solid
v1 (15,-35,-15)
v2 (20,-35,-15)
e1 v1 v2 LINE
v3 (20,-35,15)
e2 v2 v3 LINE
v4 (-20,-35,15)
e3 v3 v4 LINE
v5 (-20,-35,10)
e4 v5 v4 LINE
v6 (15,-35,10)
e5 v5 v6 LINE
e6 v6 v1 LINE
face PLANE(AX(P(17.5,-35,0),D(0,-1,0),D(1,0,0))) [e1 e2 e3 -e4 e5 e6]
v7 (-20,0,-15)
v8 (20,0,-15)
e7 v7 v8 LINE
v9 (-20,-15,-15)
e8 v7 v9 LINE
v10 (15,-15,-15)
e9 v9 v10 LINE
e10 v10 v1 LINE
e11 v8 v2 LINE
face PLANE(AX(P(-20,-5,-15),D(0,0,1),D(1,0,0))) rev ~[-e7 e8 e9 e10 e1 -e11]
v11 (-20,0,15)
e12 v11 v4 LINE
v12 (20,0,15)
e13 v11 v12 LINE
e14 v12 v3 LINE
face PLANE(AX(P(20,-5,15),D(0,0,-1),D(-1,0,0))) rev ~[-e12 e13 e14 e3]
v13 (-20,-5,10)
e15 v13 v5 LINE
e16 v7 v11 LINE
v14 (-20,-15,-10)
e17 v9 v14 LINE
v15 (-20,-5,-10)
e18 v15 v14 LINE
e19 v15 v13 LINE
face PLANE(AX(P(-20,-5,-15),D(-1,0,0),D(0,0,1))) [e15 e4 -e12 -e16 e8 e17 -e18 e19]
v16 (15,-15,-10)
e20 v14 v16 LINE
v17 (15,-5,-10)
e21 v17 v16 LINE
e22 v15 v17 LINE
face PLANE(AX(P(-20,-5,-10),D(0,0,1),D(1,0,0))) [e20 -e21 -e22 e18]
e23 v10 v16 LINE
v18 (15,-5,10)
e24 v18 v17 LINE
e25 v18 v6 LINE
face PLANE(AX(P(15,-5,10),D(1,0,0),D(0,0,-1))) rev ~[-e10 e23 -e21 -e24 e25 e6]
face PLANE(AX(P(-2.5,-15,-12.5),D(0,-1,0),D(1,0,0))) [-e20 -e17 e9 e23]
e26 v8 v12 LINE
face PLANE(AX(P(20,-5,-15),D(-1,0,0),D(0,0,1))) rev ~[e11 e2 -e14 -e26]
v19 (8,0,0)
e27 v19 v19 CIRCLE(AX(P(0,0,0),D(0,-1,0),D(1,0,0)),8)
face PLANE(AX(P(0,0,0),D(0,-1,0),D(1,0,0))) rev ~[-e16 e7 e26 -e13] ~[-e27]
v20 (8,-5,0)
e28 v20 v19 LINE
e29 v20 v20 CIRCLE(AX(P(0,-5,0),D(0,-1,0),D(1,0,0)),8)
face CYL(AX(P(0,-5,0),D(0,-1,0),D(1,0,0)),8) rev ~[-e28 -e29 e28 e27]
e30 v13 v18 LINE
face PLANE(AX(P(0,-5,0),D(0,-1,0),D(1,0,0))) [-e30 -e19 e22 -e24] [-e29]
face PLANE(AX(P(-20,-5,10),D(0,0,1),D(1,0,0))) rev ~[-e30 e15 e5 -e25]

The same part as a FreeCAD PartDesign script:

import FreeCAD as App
import Part
import Sketcher

doc = App.newDocument("Part")
body = doc.addObject("PartDesign::Body", "Body")

sketch1 = body.newObject("Sketcher::SketchObject", "Sketch")
sketch1.AttachmentSupport = (doc.getObject("XZ_Plane"), [""])
sketch1.MapMode = "FlatFace"
sketch1.addGeometry(Part.LineSegment(App.Vector(-20, 15, 0), App.Vector(-20, -15, 0)), False)
sketch1.addGeometry(Part.LineSegment(App.Vector(-20, -15, 0), App.Vector(20, -15, 0)), False)
sketch1.addGeometry(Part.LineSegment(App.Vector(20, -15, 0), App.Vector(20, 15, 0)), False)
sketch1.addGeometry(Part.LineSegment(App.Vector(20, 15, 0), App.Vector(-20, 15, 0)), False)
sketch1.addConstraint(Sketcher.Constraint("Coincident", 0, 2, 1, 1))
sketch1.addConstraint(Sketcher.Constraint("Coincident", 1, 2, 2, 1))
sketch1.addConstraint(Sketcher.Constraint("Coincident", 2, 2, 3, 1))
sketch1.addConstraint(Sketcher.Constraint("Coincident", 3, 2, 0, 1))
sketch1.addConstraint(Sketcher.Constraint("Vertical", 0))
sketch1.addConstraint(Sketcher.Constraint("Horizontal", 1))
sketch1.addConstraint(Sketcher.Constraint("Vertical", 2))
sketch1.addConstraint(Sketcher.Constraint("Horizontal", 3))
sketch1.addConstraint(Sketcher.Constraint("Symmetric", 0, 2, 2, 2, -1, 1))
sketch1.addConstraint(Sketcher.Constraint("DistanceX", 1, 1, 1, 2, 40.0))
sketch1.addConstraint(Sketcher.Constraint("DistanceY", 0, 2, 0, 1, 30.0))
pad1 = body.newObject("PartDesign::Pad", "Pad")
pad1.Profile = sketch1
pad1.Length = 5

sketch2 = body.newObject("Sketcher::SketchObject", "Sketch001")
sketch2.AttachmentSupport = (doc.getObject("XZ_Plane"), [""])
sketch2.MapMode = "FlatFace"
sketch2.AttachmentOffset = App.Placement(App.Vector(0, 0, 5), App.Rotation())
sketch2.addGeometry(Part.Circle(App.Vector(0, 0, 0), App.Vector(0, 0, 1), 8), False)
sketch2.addConstraint(Sketcher.Constraint("Coincident", 0, 3, -1, 1))
sketch2.addConstraint(Sketcher.Constraint("Diameter", 0, 16.0))
pocket1 = body.newObject("PartDesign::Pocket", "Pocket")
pocket1.Profile = sketch2
pocket1.Length = 25

sketch3 = body.newObject("Sketcher::SketchObject", "Sketch002")
sketch3.AttachmentSupport = (doc.getObject("XZ_Plane"), [""])
sketch3.MapMode = "FlatFace"
sketch3.AttachmentOffset = App.Placement(App.Vector(0, 0, 5), App.Rotation())
sketch3.addGeometry(Part.LineSegment(App.Vector(15, -15, 0), App.Vector(20, -15, 0)), False)
sketch3.addGeometry(Part.LineSegment(App.Vector(20, -15, 0), App.Vector(20, 15, 0)), False)
sketch3.addGeometry(Part.LineSegment(App.Vector(20, 15, 0), App.Vector(-20, 15, 0)), False)
sketch3.addGeometry(Part.LineSegment(App.Vector(-20, 15, 0), App.Vector(-20, 10, 0)), False)
sketch3.addGeometry(Part.LineSegment(App.Vector(-20, 10, 0), App.Vector(15, 10, 0)), False)
sketch3.addGeometry(Part.LineSegment(App.Vector(15, 10, 0), App.Vector(15, -15, 0)), False)
sketch3.addConstraint(Sketcher.Constraint("Coincident", 0, 2, 1, 1))
sketch3.addConstraint(Sketcher.Constraint("Coincident", 1, 2, 2, 1))
sketch3.addConstraint(Sketcher.Constraint("Coincident", 2, 2, 3, 1))
sketch3.addConstraint(Sketcher.Constraint("Coincident", 3, 2, 4, 1))
sketch3.addConstraint(Sketcher.Constraint("Coincident", 4, 2, 5, 1))
sketch3.addConstraint(Sketcher.Constraint("Coincident", 5, 2, 0, 1))
sketch3.addConstraint(Sketcher.Constraint("Horizontal", 0))
sketch3.addConstraint(Sketcher.Constraint("Vertical", 1))
sketch3.addConstraint(Sketcher.Constraint("Horizontal", 2))
sketch3.addConstraint(Sketcher.Constraint("Vertical", 3))
sketch3.addConstraint(Sketcher.Constraint("Horizontal", 4))
sketch3.addConstraint(Sketcher.Constraint("Vertical", 5))
sketch3.addConstraint(Sketcher.Constraint("Symmetric", 0, 2, 2, 2, -1, 1))
sketch3.addConstraint(Sketcher.Constraint("Equal", 0, 3))
sketch3.addConstraint(Sketcher.Constraint("DistanceX", 0, 1, 0, 2, 5.0))
sketch3.addConstraint(Sketcher.Constraint("DistanceX", 2, 2, 2, 1, 40.0))
sketch3.addConstraint(Sketcher.Constraint("DistanceY", 1, 1, 1, 2, 30.0))
pad2 = body.newObject("PartDesign::Pad", "Pad001")
pad2.Profile = sketch3
pad2.Length = 30

sketch4 = body.newObject("Sketcher::SketchObject", "Sketch003")
sketch4.AttachmentSupport = (doc.getObject("XZ_Plane"), [""])
sketch4.MapMode = "FlatFace"
sketch4.AttachmentOffset = App.Placement(App.Vector(0, 0, 5), App.Rotation())
sketch4.addGeometry(Part.LineSegment(App.Vector(-20, -10, 0), App.Vector(-20, -15, 0)), False)
sketch4.addGeometry(Part.LineSegment(App.Vector(-20, -15, 0), App.Vector(15, -15, 0)), False)
sketch4.addGeometry(Part.LineSegment(App.Vector(15, -15, 0), App.Vector(15, -10, 0)), False)
sketch4.addGeometry(Part.LineSegment(App.Vector(15, -10, 0), App.Vector(-20, -10, 0)), False)
sketch4.addConstraint(Sketcher.Constraint("Coincident", 0, 2, 1, 1))
sketch4.addConstraint(Sketcher.Constraint("Coincident", 1, 2, 2, 1))
sketch4.addConstraint(Sketcher.Constraint("Coincident", 2, 2, 3, 1))
sketch4.addConstraint(Sketcher.Constraint("Coincident", 3, 2, 0, 1))
sketch4.addConstraint(Sketcher.Constraint("Vertical", 0))
sketch4.addConstraint(Sketcher.Constraint("Horizontal", 1))
sketch4.addConstraint(Sketcher.Constraint("Vertical", 2))
sketch4.addConstraint(Sketcher.Constraint("Horizontal", 3))
sketch4.addConstraint(Sketcher.Constraint("DistanceX", 1, 1, 1, 2, 35.0))
sketch4.addConstraint(Sketcher.Constraint("DistanceY", 0, 2, 0, 1, 5.0))
sketch4.addConstraint(Sketcher.Constraint("DistanceX", 0, 2, -1, 1, 20.0))
sketch4.addConstraint(Sketcher.Constraint("DistanceY", 0, 2, -1, 1, 15.0))
pad3 = body.newObject("PartDesign::Pad", "Pad002")
pad3.Profile = sketch4
pad3.Length = 10

doc.recompute()
